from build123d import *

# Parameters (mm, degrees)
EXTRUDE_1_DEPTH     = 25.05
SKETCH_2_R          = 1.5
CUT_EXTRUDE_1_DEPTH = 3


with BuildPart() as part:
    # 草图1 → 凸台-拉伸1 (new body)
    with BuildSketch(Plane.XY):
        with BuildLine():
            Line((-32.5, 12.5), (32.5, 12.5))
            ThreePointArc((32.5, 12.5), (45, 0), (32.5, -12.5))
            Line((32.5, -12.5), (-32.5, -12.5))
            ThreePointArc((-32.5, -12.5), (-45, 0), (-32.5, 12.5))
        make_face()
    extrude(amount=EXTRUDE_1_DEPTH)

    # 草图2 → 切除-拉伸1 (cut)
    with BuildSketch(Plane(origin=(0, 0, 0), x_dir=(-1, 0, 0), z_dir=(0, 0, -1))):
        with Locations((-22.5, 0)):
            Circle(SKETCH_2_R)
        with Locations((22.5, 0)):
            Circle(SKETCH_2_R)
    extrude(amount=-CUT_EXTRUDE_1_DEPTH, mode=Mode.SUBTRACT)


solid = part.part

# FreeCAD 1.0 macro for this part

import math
import FreeCAD as App
import Part
import Sketcher

V = App.Vector

doc = App.newDocument("Part")
body = doc.addObject("PartDesign::Body", "Body")

sketch1 = body.newObject("Sketcher::SketchObject", "Sketch")
sketch1.AttachmentSupport = (doc.getObject("XY_Plane"), [""])
sketch1.MapMode = "FlatFace"
sketch1.addGeometry(Part.LineSegment(V(32, 12, 0), V(-32, 12, 0)), False)
sketch1.addGeometry(Part.ArcOfCircle(Part.Circle(V(-32, 0, 0), V(0, 0, 1), 12), math.radians(90), math.radians(270)), False)
sketch1.addGeometry(Part.LineSegment(V(-32, -12, 0), V(32, -12, 0)), False)
sketch1.addGeometry(Part.ArcOfCircle(Part.Circle(V(32, 0, 0), V(0, 0, 1), 12), math.radians(-90), math.radians(90)), False)
sketch1.addConstraint(Sketcher.Constraint("Tangent", 0, 2, 1, 1))
sketch1.addConstraint(Sketcher.Constraint("Tangent", 1, 2, 2, 1))
sketch1.addConstraint(Sketcher.Constraint("Tangent", 2, 2, 3, 1))
sketch1.addConstraint(Sketcher.Constraint("Tangent", 3, 2, 0, 1))
sketch1.addConstraint(Sketcher.Constraint("Horizontal", 0))
sketch1.addConstraint(Sketcher.Constraint("Horizontal", 2))
sketch1.addConstraint(Sketcher.Constraint("Symmetric", 1, 3, 3, 3, -1, 1))
sketch1.addConstraint(Sketcher.Constraint("Radius", 1, 12.5))
sketch1.addConstraint(Sketcher.Constraint("DistanceX", 0, 2, 0, 1, 65.0))
pad1 = body.newObject("PartDesign::Pad", "Pad")
pad1.Profile = sketch1
pad1.Length = 25.05

sketch2 = body.newObject("Sketcher::SketchObject", "Sketch001")
sketch2.AttachmentSupport = (doc.getObject("XY_Plane"), [""])
sketch2.MapMode = "FlatFace"
sketch2.addGeometry(Part.Circle(V(22.5, 0, 0), V(0, 0, 1), 1.5), False)
sketch2.addGeometry(Part.Circle(V(-22.5, 0, 0), V(0, 0, 1), 1.5), False)
sketch2.addConstraint(Sketcher.Constraint("Equal", 0, 1))
sketch2.addConstraint(Sketcher.Constraint("Symmetric", 0, 3, 1, 3, -1, 1))
sketch2.addConstraint(Sketcher.Constraint("PointOnObject", 0, 3, -1))
sketch2.addConstraint(Sketcher.Constraint("Diameter", 0, 3.0))
sketch2.addConstraint(Sketcher.Constraint("DistanceX", 1, 3, 0, 3, 45.0))
pocket1 = body.newObject("PartDesign::Pocket", "Pocket")
pocket1.Profile = sketch2
pocket1.Length = 3
pocket1.Reversed = True

doc.recompute()
